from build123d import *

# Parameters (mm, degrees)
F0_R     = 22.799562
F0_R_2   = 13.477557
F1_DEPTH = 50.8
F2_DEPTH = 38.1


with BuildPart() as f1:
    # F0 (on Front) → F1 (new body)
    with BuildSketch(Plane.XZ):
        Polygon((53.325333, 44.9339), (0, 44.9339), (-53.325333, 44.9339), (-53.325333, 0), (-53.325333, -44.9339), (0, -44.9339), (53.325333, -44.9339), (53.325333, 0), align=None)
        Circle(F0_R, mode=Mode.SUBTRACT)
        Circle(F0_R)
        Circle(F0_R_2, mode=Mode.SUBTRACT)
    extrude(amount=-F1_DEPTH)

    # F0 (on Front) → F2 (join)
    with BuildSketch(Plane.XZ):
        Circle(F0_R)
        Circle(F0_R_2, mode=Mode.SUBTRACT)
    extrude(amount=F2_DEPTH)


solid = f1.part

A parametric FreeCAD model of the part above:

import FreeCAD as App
import Part
import Sketcher
from FreeCAD import Vector
Q = App.Units.Quantity

doc = App.newDocument("Part")
body = doc.addObject("PartDesign::Body", "Body")

sketch1 = body.newObject("Sketcher::SketchObject", "Sketch")
sketch1.AttachmentSupport = (doc.getObject("XZ_Plane"), [""])
sketch1.MapMode = "FlatFace"
sketch1.addGeometry([
    Part.LineSegment(Vector(53, 45, 0), Vector(-53, 45, 0)),
    Part.LineSegment(Vector(-53, 45, 0), Vector(-53, -45, 0)),
    Part.LineSegment(Vector(-53, -45, 0), Vector(53, -45, 0)),
    Part.LineSegment(Vector(53, -45, 0), Vector(53, 45, 0)),
    Part.Circle(Vector(0, 0, 0), Vector(0, 0, 1), 13),
], False)
sketch1.addConstraint([
    Sketcher.Constraint("Coincident", 0, 2, 1, 1),
    Sketcher.Constraint("Coincident", 1, 2, 2, 1),
    Sketcher.Constraint("Coincident", 2, 2, 3, 1),
    Sketcher.Constraint("Coincident", 3, 2, 0, 1),
    Sketcher.Constraint("Horizontal", 0),
    Sketcher.Constraint("Vertical", 1),
    Sketcher.Constraint("Horizontal", 2),
    Sketcher.Constraint("Vertical", 3),
    Sketcher.Constraint("Coincident", 4, 3, -1, 1),
    Sketcher.Constraint("Symmetric", 0, 2, 2, 2, -1, 1),
    Sketcher.Constraint("Diameter", 4, Q("26.955114 mm")),
    Sketcher.Constraint("DistanceY", 1, 2, 1, 1, Q("89.8678 mm")),
    Sketcher.Constraint("DistanceX", 0, 2, 0, 1, Q("106.650666 mm")),
])
pad1 = body.newObject("PartDesign::Pad", "Pad")
pad1.Profile = sketch1
pad1.Length = Q("2 in")
pad1.Reversed = True

sketch2 = body.newObject("Sketcher::SketchObject", "Sketch001")
sketch2.AttachmentSupport = (doc.getObject("XZ_Plane"), [""])
sketch2.MapMode = "FlatFace"
sketch2.addGeometry([
    Part.Circle(Vector(0, 0, 0), Vector(0, 0, 1), 23),
    Part.Circle(Vector(0, 0, 0), Vector(0, 0, 1), 13),
], False)
sketch2.addConstraint([
    Sketcher.Constraint("Coincident", 0, 3, -1, 1),
    Sketcher.Constraint("Coincident", 1, 3, -1, 1),
    Sketcher.Constraint("Diameter", 0, Q("45.599124 mm")),
    Sketcher.Constraint("Diameter", 1, Q("26.955114 mm")),
])
pad2 = body.newObject("PartDesign::Pad", "Pad001")
pad2.Profile = sketch2
pad2.Length = Q("1.5 in")

doc.recompute()
